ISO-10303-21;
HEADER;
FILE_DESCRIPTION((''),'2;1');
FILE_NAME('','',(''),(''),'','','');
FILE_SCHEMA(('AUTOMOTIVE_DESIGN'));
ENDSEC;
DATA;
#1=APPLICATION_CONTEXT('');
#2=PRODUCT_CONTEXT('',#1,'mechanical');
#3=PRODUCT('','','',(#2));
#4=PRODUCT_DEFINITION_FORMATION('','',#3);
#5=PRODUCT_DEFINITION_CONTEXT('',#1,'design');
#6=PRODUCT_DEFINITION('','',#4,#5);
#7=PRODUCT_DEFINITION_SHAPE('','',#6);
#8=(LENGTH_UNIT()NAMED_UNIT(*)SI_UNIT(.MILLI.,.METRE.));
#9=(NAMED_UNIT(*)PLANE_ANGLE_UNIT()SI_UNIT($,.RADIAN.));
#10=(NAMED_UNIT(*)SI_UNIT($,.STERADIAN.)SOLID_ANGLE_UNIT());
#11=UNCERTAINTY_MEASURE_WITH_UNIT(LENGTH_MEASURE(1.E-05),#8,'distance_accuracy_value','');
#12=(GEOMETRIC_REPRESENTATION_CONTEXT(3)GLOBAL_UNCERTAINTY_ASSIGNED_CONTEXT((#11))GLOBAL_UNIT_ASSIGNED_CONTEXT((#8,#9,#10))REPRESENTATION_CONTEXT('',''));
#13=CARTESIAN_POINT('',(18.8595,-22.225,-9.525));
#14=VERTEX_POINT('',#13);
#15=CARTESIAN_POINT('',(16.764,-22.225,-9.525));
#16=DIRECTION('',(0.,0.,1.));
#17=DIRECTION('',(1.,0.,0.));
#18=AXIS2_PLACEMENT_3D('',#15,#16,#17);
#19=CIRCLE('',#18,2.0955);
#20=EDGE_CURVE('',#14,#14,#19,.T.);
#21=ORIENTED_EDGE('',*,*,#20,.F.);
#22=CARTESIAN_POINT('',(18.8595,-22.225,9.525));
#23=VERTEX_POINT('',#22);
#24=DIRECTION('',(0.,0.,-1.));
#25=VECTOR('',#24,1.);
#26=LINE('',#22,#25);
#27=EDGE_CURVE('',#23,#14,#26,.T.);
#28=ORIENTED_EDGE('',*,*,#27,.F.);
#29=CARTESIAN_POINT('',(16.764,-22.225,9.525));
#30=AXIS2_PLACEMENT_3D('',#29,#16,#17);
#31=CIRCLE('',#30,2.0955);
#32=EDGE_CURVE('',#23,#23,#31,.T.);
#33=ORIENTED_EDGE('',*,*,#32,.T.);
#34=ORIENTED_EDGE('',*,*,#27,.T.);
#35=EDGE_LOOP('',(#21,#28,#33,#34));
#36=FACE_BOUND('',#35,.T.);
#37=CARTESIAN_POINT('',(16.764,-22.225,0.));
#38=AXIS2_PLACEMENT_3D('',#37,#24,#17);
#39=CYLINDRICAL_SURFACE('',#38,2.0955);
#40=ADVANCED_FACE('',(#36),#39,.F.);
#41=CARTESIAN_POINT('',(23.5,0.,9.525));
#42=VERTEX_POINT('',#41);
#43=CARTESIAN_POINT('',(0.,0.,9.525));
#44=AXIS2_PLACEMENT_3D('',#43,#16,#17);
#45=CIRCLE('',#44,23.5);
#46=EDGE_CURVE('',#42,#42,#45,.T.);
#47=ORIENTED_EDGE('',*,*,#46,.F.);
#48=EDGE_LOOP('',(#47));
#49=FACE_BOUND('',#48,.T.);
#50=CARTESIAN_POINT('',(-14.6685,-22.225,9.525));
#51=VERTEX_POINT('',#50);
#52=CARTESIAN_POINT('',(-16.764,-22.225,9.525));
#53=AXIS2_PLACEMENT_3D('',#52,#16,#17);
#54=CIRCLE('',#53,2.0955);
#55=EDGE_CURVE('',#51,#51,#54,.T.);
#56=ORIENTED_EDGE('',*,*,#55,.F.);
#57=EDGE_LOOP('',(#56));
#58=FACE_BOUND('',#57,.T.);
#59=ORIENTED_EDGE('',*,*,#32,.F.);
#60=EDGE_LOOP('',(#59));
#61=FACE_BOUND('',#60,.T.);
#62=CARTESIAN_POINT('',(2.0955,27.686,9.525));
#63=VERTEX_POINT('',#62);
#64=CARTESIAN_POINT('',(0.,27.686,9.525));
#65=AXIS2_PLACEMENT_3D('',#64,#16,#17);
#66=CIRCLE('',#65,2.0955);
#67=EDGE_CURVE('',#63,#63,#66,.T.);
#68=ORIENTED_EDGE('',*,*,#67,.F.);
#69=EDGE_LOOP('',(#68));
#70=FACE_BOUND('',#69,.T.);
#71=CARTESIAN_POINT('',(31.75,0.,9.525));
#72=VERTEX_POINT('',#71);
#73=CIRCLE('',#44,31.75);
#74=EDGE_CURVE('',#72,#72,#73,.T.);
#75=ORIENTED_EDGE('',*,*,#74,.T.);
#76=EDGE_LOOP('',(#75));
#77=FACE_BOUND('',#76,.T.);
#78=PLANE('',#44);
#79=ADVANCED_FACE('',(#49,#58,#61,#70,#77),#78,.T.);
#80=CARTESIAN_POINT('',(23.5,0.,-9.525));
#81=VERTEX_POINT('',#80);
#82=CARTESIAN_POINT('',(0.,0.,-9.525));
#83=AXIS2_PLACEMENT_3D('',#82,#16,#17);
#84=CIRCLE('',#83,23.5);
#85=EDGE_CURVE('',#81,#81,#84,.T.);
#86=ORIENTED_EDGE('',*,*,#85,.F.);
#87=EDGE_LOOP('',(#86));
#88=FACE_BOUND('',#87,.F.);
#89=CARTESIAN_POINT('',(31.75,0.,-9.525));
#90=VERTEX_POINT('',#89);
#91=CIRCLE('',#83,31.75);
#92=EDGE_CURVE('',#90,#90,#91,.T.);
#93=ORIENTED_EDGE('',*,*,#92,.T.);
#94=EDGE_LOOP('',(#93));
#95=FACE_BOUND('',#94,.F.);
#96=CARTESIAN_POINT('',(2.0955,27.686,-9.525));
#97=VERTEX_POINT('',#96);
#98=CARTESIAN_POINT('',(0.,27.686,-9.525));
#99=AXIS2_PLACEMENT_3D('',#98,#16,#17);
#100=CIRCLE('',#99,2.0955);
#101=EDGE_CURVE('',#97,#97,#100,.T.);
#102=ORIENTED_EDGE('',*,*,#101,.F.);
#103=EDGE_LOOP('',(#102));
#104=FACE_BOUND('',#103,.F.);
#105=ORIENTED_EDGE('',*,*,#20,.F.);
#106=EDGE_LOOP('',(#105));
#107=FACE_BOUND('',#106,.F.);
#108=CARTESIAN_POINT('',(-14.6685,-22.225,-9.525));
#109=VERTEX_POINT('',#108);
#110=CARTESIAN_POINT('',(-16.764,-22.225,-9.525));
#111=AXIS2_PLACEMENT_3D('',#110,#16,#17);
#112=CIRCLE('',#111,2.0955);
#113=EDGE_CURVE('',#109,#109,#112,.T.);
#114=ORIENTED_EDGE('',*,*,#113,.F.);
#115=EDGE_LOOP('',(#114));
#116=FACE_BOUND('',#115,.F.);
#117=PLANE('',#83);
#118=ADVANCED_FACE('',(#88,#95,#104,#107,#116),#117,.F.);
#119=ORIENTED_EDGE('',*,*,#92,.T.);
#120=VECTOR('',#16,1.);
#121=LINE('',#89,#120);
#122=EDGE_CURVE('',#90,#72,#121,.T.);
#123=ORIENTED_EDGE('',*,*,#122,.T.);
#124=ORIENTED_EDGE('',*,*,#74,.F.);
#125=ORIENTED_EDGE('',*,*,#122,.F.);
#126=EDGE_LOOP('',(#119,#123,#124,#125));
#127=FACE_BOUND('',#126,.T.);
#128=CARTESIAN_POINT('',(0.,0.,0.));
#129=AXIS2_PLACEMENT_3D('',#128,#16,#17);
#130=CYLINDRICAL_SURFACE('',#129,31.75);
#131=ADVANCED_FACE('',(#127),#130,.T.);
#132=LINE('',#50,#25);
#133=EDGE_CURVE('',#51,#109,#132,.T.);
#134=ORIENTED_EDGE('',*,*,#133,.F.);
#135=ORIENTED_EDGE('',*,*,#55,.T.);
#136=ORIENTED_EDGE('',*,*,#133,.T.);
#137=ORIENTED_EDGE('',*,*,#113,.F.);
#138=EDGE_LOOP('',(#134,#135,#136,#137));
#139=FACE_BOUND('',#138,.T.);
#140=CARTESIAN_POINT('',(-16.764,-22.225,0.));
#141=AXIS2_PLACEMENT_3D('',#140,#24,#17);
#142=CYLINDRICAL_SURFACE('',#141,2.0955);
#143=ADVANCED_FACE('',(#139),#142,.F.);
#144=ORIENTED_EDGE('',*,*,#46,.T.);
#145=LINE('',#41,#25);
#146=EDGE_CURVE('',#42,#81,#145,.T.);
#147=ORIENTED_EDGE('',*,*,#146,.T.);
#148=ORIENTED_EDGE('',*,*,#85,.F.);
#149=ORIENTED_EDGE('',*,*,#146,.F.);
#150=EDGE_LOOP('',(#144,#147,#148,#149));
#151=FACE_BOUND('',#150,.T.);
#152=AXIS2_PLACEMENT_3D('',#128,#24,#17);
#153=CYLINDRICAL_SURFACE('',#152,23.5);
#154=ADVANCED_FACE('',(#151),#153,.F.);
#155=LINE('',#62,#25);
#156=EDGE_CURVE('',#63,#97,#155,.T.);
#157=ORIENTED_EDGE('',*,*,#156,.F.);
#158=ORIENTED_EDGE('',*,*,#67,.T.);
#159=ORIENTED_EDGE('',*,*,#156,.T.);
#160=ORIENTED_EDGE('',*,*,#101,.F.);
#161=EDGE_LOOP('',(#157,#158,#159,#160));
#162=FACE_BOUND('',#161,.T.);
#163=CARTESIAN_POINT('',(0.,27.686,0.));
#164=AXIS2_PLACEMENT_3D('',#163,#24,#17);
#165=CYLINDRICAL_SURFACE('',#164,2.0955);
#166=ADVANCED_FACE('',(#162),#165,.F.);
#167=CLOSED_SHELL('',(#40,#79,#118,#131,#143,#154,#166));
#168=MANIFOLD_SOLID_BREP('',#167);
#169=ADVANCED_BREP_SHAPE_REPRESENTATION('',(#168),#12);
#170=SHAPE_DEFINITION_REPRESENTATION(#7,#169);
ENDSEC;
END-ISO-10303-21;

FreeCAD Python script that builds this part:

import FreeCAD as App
import Part
import Sketcher

V = App.Vector
Q = App.Units.Quantity

doc = App.newDocument("Part")
body = doc.addObject("PartDesign::Body", "Body")

# Sketch on XY plane
sketch1 = doc.addObject("Sketcher::SketchObject", "Sketch")
body.addObject(sketch1)
sketch1.AttachmentSupport = (doc.XY_Plane, [""])
sketch1.MapMode = "FlatFace"
sketch1.addGeometry(Part.Circle(V(0, 0, 0), V(0, 0, 1), 31.8), False)
sketch1.addGeometry(Part.Circle(V(-16.8, -22.2, 0), V(0, 0, 1), 2.1), False)
sketch1.addGeometry(Part.Circle(V(16.8, -22.2, 0), V(0, 0, 1), 2.1), False)
sketch1.addGeometry(Part.Circle(V(0, 0, 0), V(0, 0, 1), 23.5), False)
sketch1.addGeometry(Part.Circle(V(0, 27.7, 0), V(0, 0, 1), 2.1), False)
sketch1.addConstraint(Sketcher.Constraint("Coincident", 0, 3, -1, 1))
sketch1.addConstraint(Sketcher.Constraint("Coincident", 3, 3, -1, 1))
sketch1.addConstraint(Sketcher.Constraint("Equal", 1, 2))
sketch1.addConstraint(Sketcher.Constraint("Equal", 2, 4))
sketch1.addConstraint(Sketcher.Constraint("Symmetric", 1, 3, 2, 3, -2))
sketch1.addConstraint(Sketcher.Constraint("PointOnObject", 4, 3, -2))
sketch1.addConstraint(Sketcher.Constraint("Diameter", 0, Q("2.5 in")))
sketch1.addConstraint(Sketcher.Constraint("Diameter", 1, Q("0.165 in")))
sketch1.addConstraint(Sketcher.Constraint("Diameter", 3, Q("47 mm")))
sketch1.addConstraint(Sketcher.Constraint("DistanceX", 1, 3, -1, 1, Q("0.66 in")))
sketch1.addConstraint(Sketcher.Constraint("DistanceY", -1, 1, 4, 3, Q("1.09 in")))
sketch1.addConstraint(Sketcher.Constraint("DistanceY", 1, 3, -1, 1, Q("0.875 in")))
pad1 = doc.addObject("PartDesign::Pad", "Pad")
body.addObject(pad1)
pad1.Profile = sketch1
pad1.Length = Q("0.75 in")
pad1.Midplane = True

doc.recompute()
